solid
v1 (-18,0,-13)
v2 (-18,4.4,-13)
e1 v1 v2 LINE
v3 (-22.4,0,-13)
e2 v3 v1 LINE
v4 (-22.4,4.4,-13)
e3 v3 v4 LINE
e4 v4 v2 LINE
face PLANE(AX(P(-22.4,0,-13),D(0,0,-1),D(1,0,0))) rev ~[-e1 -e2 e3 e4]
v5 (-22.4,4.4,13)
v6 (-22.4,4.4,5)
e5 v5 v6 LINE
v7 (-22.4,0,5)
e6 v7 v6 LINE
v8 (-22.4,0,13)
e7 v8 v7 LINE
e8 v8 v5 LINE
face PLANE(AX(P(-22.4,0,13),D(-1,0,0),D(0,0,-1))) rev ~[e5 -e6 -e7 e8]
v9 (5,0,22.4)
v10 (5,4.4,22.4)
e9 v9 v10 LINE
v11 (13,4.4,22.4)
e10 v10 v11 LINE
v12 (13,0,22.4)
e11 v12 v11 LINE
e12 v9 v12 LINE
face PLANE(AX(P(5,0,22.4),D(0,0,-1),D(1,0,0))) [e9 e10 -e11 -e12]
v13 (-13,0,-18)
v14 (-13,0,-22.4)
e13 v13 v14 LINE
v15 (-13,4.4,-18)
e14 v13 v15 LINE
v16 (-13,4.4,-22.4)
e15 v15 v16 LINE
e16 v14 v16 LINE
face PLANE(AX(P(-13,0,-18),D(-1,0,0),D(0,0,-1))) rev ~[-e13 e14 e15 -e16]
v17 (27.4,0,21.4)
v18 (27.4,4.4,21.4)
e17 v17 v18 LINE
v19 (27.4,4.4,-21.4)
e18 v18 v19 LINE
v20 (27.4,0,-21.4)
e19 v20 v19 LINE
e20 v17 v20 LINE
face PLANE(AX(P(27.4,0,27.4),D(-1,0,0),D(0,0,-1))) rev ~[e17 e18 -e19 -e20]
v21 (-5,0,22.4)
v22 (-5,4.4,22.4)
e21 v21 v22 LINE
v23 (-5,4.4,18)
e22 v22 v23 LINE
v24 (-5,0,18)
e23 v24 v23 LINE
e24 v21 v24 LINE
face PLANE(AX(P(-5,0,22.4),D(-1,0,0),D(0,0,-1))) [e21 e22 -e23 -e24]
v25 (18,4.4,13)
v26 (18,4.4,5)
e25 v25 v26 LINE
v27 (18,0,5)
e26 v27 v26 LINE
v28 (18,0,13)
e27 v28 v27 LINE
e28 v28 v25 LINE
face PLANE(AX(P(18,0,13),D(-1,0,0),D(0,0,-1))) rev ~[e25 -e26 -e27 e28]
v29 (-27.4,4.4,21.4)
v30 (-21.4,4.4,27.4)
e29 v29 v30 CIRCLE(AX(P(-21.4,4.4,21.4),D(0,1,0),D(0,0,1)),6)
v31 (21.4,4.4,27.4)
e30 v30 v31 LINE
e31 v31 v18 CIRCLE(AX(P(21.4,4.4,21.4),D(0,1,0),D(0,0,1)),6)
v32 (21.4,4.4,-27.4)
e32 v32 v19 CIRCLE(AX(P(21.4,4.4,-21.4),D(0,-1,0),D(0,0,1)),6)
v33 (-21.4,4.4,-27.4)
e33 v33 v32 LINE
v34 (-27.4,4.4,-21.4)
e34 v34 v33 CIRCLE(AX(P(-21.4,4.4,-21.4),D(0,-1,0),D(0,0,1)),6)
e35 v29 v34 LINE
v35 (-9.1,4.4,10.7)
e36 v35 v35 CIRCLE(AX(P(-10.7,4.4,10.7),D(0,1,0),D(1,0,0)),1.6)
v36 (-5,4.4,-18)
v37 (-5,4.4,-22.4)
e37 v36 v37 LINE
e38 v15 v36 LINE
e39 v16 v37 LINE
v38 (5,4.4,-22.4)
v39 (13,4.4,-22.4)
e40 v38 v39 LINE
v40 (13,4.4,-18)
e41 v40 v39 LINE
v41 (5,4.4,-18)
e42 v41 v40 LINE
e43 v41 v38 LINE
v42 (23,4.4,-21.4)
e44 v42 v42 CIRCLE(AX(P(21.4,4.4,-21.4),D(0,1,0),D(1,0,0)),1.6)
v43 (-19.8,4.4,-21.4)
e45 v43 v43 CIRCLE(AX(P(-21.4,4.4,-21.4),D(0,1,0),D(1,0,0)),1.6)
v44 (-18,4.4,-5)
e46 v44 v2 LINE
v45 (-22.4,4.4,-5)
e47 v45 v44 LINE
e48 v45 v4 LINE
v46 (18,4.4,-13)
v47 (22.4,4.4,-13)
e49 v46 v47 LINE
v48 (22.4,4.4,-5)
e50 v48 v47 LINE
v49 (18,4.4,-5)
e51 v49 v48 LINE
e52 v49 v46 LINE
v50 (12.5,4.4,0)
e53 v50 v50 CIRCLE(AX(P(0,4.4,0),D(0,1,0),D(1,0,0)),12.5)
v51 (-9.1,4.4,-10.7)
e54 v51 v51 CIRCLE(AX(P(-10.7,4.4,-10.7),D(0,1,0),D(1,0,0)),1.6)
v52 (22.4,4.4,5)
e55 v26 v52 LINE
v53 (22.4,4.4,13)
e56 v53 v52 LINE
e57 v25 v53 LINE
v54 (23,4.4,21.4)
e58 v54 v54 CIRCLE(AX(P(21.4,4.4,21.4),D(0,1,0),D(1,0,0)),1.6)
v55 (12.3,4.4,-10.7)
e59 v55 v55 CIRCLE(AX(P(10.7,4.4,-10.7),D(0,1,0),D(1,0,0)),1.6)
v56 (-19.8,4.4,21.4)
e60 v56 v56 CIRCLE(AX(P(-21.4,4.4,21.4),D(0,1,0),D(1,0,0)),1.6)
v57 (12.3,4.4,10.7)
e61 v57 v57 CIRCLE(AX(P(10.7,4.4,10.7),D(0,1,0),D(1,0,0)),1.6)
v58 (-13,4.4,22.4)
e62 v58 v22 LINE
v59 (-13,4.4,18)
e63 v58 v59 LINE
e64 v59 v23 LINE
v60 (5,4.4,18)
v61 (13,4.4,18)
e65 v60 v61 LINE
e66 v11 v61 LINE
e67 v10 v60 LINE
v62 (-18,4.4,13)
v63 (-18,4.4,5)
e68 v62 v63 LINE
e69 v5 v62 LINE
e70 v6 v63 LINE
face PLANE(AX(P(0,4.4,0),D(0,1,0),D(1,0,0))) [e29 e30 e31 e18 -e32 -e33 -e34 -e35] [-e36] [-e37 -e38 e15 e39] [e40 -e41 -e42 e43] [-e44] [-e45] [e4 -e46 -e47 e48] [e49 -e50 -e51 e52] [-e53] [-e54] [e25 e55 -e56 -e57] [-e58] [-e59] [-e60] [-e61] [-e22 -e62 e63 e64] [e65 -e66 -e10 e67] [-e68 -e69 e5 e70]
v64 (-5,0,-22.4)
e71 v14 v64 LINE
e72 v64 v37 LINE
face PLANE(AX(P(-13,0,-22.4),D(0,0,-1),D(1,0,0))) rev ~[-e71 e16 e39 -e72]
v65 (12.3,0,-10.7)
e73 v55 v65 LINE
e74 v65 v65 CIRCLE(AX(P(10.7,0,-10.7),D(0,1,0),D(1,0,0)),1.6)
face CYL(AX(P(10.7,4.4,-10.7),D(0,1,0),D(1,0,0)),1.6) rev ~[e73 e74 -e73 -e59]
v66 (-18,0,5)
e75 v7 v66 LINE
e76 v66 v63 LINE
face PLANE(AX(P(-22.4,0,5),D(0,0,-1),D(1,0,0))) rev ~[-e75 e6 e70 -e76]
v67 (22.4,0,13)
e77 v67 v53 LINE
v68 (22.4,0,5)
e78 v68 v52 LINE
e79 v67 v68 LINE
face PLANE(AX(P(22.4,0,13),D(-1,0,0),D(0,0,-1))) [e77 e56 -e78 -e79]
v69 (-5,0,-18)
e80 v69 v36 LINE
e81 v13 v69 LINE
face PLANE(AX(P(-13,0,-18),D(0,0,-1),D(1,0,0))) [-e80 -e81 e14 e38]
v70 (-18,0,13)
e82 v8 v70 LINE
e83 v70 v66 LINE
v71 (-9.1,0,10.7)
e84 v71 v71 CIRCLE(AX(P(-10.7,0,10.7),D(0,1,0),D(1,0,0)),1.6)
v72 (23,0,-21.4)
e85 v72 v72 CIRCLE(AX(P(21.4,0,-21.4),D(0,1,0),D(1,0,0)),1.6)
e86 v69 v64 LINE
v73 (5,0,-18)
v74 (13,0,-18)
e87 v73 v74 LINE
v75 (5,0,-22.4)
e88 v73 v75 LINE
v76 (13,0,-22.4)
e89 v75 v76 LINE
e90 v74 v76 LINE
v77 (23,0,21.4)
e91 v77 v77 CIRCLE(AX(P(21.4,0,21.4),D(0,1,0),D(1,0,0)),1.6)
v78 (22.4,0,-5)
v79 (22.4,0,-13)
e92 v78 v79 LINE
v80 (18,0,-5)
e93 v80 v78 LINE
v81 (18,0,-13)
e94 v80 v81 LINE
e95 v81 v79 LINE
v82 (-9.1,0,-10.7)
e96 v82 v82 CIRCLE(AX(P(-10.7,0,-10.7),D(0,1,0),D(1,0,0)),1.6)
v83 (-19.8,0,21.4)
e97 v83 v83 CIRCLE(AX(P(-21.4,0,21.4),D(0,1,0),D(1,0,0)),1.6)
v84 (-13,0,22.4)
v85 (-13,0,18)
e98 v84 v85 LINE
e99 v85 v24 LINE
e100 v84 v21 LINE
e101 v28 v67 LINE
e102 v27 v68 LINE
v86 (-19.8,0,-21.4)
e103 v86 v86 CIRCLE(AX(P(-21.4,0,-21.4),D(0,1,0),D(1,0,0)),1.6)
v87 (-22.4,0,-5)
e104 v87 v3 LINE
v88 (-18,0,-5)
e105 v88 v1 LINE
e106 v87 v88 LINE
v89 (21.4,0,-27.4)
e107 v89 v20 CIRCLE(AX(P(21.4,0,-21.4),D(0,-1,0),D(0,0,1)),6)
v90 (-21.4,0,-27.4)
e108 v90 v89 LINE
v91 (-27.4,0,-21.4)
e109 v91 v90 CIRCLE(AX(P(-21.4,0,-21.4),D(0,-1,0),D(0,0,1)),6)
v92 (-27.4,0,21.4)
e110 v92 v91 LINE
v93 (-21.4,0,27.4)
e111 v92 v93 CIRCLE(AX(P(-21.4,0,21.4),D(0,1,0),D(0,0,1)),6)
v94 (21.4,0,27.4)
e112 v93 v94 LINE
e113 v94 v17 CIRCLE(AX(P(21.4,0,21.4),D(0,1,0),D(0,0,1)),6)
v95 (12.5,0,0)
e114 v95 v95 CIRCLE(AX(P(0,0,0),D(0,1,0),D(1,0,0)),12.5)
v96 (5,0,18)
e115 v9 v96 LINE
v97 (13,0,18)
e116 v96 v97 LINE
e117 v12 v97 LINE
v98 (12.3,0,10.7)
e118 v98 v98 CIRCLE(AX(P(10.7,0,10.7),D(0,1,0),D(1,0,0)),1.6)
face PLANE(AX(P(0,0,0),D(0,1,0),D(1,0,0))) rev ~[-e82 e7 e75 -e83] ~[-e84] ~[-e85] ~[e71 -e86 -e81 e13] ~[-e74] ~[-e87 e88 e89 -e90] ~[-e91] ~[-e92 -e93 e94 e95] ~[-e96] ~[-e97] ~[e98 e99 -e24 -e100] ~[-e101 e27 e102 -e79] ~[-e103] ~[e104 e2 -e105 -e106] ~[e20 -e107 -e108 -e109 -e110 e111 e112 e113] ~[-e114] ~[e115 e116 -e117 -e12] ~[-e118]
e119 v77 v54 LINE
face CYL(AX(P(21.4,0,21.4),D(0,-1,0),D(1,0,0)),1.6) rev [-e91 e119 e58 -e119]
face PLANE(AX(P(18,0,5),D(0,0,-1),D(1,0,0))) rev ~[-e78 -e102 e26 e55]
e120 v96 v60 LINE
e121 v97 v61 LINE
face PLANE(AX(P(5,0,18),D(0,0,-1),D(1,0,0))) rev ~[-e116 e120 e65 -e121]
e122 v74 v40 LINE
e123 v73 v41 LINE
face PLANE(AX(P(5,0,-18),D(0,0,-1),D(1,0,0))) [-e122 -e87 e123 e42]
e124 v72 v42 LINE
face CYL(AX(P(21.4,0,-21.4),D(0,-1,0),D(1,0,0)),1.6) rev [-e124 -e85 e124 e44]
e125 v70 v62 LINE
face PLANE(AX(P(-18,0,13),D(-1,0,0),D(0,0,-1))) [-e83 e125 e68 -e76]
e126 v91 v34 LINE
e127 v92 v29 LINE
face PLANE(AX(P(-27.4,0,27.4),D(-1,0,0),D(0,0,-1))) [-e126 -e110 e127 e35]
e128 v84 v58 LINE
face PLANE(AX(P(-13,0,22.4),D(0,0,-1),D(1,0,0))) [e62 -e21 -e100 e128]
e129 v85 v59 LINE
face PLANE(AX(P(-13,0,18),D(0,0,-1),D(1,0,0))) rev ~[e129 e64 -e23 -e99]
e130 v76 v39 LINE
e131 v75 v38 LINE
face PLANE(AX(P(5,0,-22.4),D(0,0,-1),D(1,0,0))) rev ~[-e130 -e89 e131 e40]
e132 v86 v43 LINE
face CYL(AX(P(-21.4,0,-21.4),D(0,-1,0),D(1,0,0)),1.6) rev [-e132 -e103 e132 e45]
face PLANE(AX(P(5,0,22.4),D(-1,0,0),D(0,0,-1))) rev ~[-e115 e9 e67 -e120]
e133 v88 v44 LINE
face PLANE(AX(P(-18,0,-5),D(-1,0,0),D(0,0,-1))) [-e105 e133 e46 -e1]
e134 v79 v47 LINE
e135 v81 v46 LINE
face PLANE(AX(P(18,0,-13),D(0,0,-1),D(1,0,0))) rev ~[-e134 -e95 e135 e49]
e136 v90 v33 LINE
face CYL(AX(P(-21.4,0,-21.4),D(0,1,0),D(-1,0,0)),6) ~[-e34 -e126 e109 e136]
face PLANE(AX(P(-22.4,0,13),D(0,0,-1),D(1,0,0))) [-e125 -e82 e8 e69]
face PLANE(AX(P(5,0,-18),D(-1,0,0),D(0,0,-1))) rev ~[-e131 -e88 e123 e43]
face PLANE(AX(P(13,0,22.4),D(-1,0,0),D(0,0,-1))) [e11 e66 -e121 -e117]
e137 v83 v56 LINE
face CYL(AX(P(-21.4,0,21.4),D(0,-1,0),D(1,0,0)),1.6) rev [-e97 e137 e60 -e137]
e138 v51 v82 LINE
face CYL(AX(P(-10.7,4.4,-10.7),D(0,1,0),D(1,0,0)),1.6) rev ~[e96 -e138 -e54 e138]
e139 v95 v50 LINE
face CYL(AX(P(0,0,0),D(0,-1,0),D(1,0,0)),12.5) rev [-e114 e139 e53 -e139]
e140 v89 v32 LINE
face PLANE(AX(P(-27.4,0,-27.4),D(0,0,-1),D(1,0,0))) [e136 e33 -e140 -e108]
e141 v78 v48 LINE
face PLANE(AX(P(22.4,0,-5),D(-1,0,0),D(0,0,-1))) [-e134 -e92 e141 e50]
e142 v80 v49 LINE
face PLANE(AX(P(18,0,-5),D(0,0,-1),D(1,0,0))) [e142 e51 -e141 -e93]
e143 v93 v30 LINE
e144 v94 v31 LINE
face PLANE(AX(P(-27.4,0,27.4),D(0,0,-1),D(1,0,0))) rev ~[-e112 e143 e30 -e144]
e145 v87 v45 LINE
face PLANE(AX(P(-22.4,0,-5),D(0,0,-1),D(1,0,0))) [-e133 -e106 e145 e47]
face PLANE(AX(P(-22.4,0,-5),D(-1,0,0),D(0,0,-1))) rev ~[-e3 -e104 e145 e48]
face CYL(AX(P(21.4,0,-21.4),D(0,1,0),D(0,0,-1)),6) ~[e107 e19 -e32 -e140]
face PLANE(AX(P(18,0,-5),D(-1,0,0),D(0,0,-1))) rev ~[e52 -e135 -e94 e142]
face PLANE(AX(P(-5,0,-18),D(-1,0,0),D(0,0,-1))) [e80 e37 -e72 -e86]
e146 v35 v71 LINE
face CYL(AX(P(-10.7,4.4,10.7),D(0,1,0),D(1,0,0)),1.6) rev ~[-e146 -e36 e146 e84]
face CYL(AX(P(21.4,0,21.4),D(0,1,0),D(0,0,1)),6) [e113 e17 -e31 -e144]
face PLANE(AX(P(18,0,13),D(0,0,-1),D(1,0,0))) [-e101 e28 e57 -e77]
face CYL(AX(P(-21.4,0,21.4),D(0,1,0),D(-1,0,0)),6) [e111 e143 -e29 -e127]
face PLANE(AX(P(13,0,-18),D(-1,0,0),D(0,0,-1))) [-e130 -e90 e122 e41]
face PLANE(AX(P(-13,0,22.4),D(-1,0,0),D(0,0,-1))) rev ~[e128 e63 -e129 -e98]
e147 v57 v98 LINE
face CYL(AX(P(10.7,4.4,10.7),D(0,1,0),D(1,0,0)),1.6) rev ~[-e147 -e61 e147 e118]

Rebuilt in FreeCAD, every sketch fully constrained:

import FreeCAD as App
import Part
import Sketcher

V = App.Vector
Q = App.Units.Quantity


def edges_at(feature, points):
    """Names of the edges that pass closest to the given points."""
    edges = feature.Shape.Edges
    near = lambda p: min(range(len(edges)), key=lambda i: edges[i].distToShape(Part.Vertex(*p))[0])
    return sorted({f"Edge{near(p) + 1}" for p in points})

doc = App.newDocument("Part")
body = doc.addObject("PartDesign::Body", "Body")

# Sketch on XZ plane
sketch1 = body.newObject("Sketcher::SketchObject", "Sketch")
sketch1.AttachmentSupport = (doc.getObject("XZ_Plane"), [""])
sketch1.MapMode = "FlatFace"
sketch1.addGeometry([
    Part.LineSegment(V(-27.4, -27.4, 0), V(-27.4, 27.4, 0)),  # 0
    Part.LineSegment(V(-27.4, 27.4, 0), V(27.4, 27.4, 0)),  # 1
    Part.LineSegment(V(27.4, 27.4, 0), V(27.4, -27.4, 0)),  # 2
    Part.LineSegment(V(27.4, -27.4, 0), V(-27.4, -27.4, 0)),  # 3
    Part.Circle(V(-21.4, 21.4, 0), V(0, 0, 1), 1.6),  # 4
    Part.LineSegment(V(-5, 22.4, 0), V(-13, 22.4, 0)),  # 5
    Part.LineSegment(V(-13, 22.4, 0), V(-13, 18, 0)),  # 6
    Part.LineSegment(V(-13, 18, 0), V(-5, 18, 0)),  # 7
    Part.LineSegment(V(-5, 18, 0), V(-5, 22.4, 0)),  # 8
    Part.LineSegment(V(-18, 13, 0), V(-22.4, 13, 0)),  # 9
    Part.LineSegment(V(-22.4, 13, 0), V(-22.4, 5, 0)),  # 10
    Part.LineSegment(V(-22.4, 5, 0), V(-18, 5, 0)),  # 11
    Part.LineSegment(V(-18, 5, 0), V(-18, 13, 0)),  # 12
    Part.LineSegment(V(13, 22.4, 0), V(5, 22.4, 0)),  # 13
    Part.LineSegment(V(5, 22.4, 0), V(5, 18, 0)),  # 14
    Part.LineSegment(V(5, 18, 0), V(13, 18, 0)),  # 15
    Part.LineSegment(V(13, 18, 0), V(13, 22.4, 0)),  # 16
    Part.Circle(V(21.4, 21.4, 0), V(0, 0, 1), 1.6),  # 17
    Part.LineSegment(V(22.4, 13, 0), V(18, 13, 0)),  # 18
    Part.LineSegment(V(18, 13, 0), V(18, 5, 0)),  # 19
    Part.LineSegment(V(18, 5, 0), V(22.4, 5, 0)),  # 20
    Part.LineSegment(V(22.4, 5, 0), V(22.4, 13, 0)),  # 21
    Part.LineSegment(V(-18, -5, 0), V(-22.4, -5, 0)),  # 22
    Part.LineSegment(V(-22.4, -5, 0), V(-22.4, -13, 0)),  # 23
    Part.LineSegment(V(-22.4, -13, 0), V(-18, -13, 0)),  # 24
    Part.LineSegment(V(-18, -13, 0), V(-18, -5, 0)),  # 25
    Part.Circle(V(-21.4, -21.4, 0), V(0, 0, 1), 1.6),  # 26
    Part.LineSegment(V(-5, -18, 0), V(-13, -18, 0)),  # 27
    Part.LineSegment(V(-13, -18, 0), V(-13, -22.4, 0)),  # 28
    Part.LineSegment(V(-13, -22.4, 0), V(-5, -22.4, 0)),  # 29
    Part.LineSegment(V(-5, -22.4, 0), V(-5, -18, 0)),  # 30
    Part.Circle(V(0, 0, 0), V(0, 0, 1), 12.5),  # 31
    Part.LineSegment(V(22.4, -5, 0), V(18, -5, 0)),  # 32
    Part.LineSegment(V(18, -5, 0), V(18, -13, 0)),  # 33
    Part.LineSegment(V(18, -13, 0), V(22.4, -13, 0)),  # 34
    Part.LineSegment(V(22.4, -13, 0), V(22.4, -5, 0)),  # 35
    Part.LineSegment(V(13, -18, 0), V(5, -18, 0)),  # 36
    Part.LineSegment(V(5, -18, 0), V(5, -22.4, 0)),  # 37
    Part.LineSegment(V(5, -22.4, 0), V(13, -22.4, 0)),  # 38
    Part.LineSegment(V(13, -22.4, 0), V(13, -18, 0)),  # 39
    Part.Circle(V(21.4, -21.4, 0), V(0, 0, 1), 1.6),  # 40
], False)
sketch1.addConstraint([
    Sketcher.Constraint("Coincident", 0, 2, 1, 1),
    Sketcher.Constraint("Coincident", 1, 2, 2, 1),
    Sketcher.Constraint("Coincident", 2, 2, 3, 1),
    Sketcher.Constraint("Coincident", 3, 2, 0, 1),
    Sketcher.Constraint("Coincident", 5, 2, 6, 1),
    Sketcher.Constraint("Coincident", 6, 2, 7, 1),
    Sketcher.Constraint("Coincident", 7, 2, 8, 1),
    Sketcher.Constraint("Coincident", 8, 2, 5, 1),
    Sketcher.Constraint("Coincident", 9, 2, 10, 1),
    Sketcher.Constraint("Coincident", 10, 2, 11, 1),
    Sketcher.Constraint("Coincident", 11, 2, 12, 1),
    Sketcher.Constraint("Coincident", 12, 2, 9, 1),
    Sketcher.Constraint("Coincident", 13, 2, 14, 1),
    Sketcher.Constraint("Coincident", 14, 2, 15, 1),
    Sketcher.Constraint("Coincident", 15, 2, 16, 1),
    Sketcher.Constraint("Coincident", 16, 2, 13, 1),
    Sketcher.Constraint("Coincident", 18, 2, 19, 1),
    Sketcher.Constraint("Coincident", 19, 2, 20, 1),
    Sketcher.Constraint("Coincident", 20, 2, 21, 1),
    Sketcher.Constraint("Coincident", 21, 2, 18, 1),
    Sketcher.Constraint("Coincident", 22, 2, 23, 1),
    Sketcher.Constraint("Coincident", 23, 2, 24, 1),
    Sketcher.Constraint("Coincident", 24, 2, 25, 1),
    Sketcher.Constraint("Coincident", 25, 2, 22, 1),
    Sketcher.Constraint("Coincident", 27, 2, 28, 1),
    Sketcher.Constraint("Coincident", 28, 2, 29, 1),
    Sketcher.Constraint("Coincident", 29, 2, 30, 1),
    Sketcher.Constraint("Coincident", 30, 2, 27, 1),
    Sketcher.Constraint("Coincident", 32, 2, 33, 1),
    Sketcher.Constraint("Coincident", 33, 2, 34, 1),
    Sketcher.Constraint("Coincident", 34, 2, 35, 1),
    Sketcher.Constraint("Coincident", 35, 2, 32, 1),
    Sketcher.Constraint("Coincident", 36, 2, 37, 1),
    Sketcher.Constraint("Coincident", 37, 2, 38, 1),
    Sketcher.Constraint("Coincident", 38, 2, 39, 1),
    Sketcher.Constraint("Coincident", 39, 2, 36, 1),
    Sketcher.Constraint("Vertical", 0),
    Sketcher.Constraint("Horizontal", 1),
    Sketcher.Constraint("Vertical", 2),
    Sketcher.Constraint("Horizontal", 3),
    Sketcher.Constraint("Horizontal", 5),
    Sketcher.Constraint("Vertical", 6),
    Sketcher.Constraint("Horizontal", 7),
    Sketcher.Constraint("Vertical", 8),
    Sketcher.Constraint("Horizontal", 9),
    Sketcher.Constraint("Vertical", 10),
    Sketcher.Constraint("Horizontal", 11),
    Sketcher.Constraint("Vertical", 12),
    Sketcher.Constraint("Horizontal", 13),
    Sketcher.Constraint("Vertical", 14),
    Sketcher.Constraint("Horizontal", 15),
    Sketcher.Constraint("Vertical", 16),
    Sketcher.Constraint("Horizontal", 18),
    Sketcher.Constraint("Vertical", 19),
    Sketcher.Constraint("Horizontal", 20),
    Sketcher.Constraint("Vertical", 21),
    Sketcher.Constraint("Horizontal", 22),
    Sketcher.Constraint("Vertical", 23),
    Sketcher.Constraint("Horizontal", 24),
    Sketcher.Constraint("Vertical", 25),
    Sketcher.Constraint("Horizontal", 27),
    Sketcher.Constraint("Vertical", 28),
    Sketcher.Constraint("Horizontal", 29),
    Sketcher.Constraint("Vertical", 30),
    Sketcher.Constraint("Horizontal", 32),
    Sketcher.Constraint("Vertical", 33),
    Sketcher.Constraint("Horizontal", 34),
    Sketcher.Constraint("Vertical", 35),
    Sketcher.Constraint("Horizontal", 36),
    Sketcher.Constraint("Vertical", 37),
    Sketcher.Constraint("Horizontal", 38),
    Sketcher.Constraint("Vertical", 39),
    Sketcher.Constraint("Coincident", 31, 3, -1, 1),
    Sketcher.Constraint("Equal", 4, 17),
    Sketcher.Constraint("Equal", 17, 26),
    Sketcher.Constraint("Equal", 26, 40),
    Sketcher.Constraint("Symmetric", 17, 3, 26, 3, -1, 1),
    Sketcher.Constraint("Symmetric", 4, 3, 40, 3, -1, 1),
    Sketcher.Constraint("Symmetric", 0, 2, 2, 2, -1, 1),
    Sketcher.Constraint("Symmetric", 20, 2, 22, 2, -1, 1),
    Sketcher.Constraint("Symmetric", 18, 2, 24, 2, -1, 1),
    Sketcher.Constraint("Symmetric", 15, 2, 27, 2, -1, 1),
    Sketcher.Constraint("Symmetric", 13, 2, 29, 2, -1, 1),
    Sketcher.Constraint("Symmetric", 11, 2, 32, 2, -1, 1),
    Sketcher.Constraint("Symmetric", 9, 2, 34, 2, -1, 1),
    Sketcher.Constraint("Symmetric", 7, 2, 36, 2, -1, 1),
    Sketcher.Constraint("Symmetric", 5, 2, 38, 2, -1, 1),
    Sketcher.Constraint("Symmetric", 4, 3, 17, 3, -2),
    Sketcher.Constraint("Symmetric", 8, 2, 13, 2, -2),
    Sketcher.Constraint("Symmetric", 6, 2, 15, 2, -2),
    Sketcher.Constraint("Symmetric", 12, 2, 18, 2, -2),
    Sketcher.Constraint("Symmetric", 10, 2, 20, 2, -2),
    Sketcher.Constraint("Equal", 3, 0),
    Sketcher.Constraint("Equal", 34, 6),
    Sketcher.Constraint("Equal", 38, 10),
    Sketcher.Constraint("Diameter", 31, Q("25 mm")),
    Sketcher.Constraint("Diameter", 4, Q("3.2 mm")),
    Sketcher.Constraint("DistanceX", 5, 2, 5, 1, Q("8 mm")),
    Sketcher.Constraint("DistanceX", 1, 1, 1, 2, Q("54.8 mm")),
    Sketcher.Constraint("DistanceX", 9, 2, 9, 1, Q("4.4 mm")),
    Sketcher.Constraint("DistanceX", 5, 2, -1, 1, Q("13 mm")),
    Sketcher.Constraint("DistanceY", -1, 1, 6, 2, Q("18 mm")),
    Sketcher.Constraint("DistanceY", -1, 1, 9, 2, Q("13 mm")),
    Sketcher.Constraint("DistanceX", 11, 2, -1, 1, Q("18 mm")),
    Sketcher.Constraint("DistanceX", 0, 2, 4, 3, Q("6 mm")),
    Sketcher.Constraint("DistanceY", 4, 3, 0, 2, Q("6 mm")),
])
pad1 = body.newObject("PartDesign::Pad", "Pad")
pad1.Profile = sketch1
pad1.Length = 4.4
pad1.Reversed = True
doc.recompute()

fillet = body.newObject("PartDesign::Fillet", "Fillet")
fillet.Base = (pad1, edges_at(pad1, [
    (27.4, 2.2, 27.4),
    (-27.4, 2.2, 27.4),
    (-27.4, 2.2, -27.4),
    (27.4, 2.2, -27.4),
]))
fillet.Radius = 6

# Sketch on XZ plane
sketch2 = body.newObject("Sketcher::SketchObject", "Sketch001")
sketch2.AttachmentSupport = (doc.getObject("XZ_Plane"), [""])
sketch2.MapMode = "FlatFace"
sketch2.AttachmentOffset = App.Placement(V(0, 0, -4.4), App.Rotation())
sketch2.addGeometry([
    Part.Circle(V(10.7, -10.7, 0), V(0, 0, 1), 1.6),
    Part.Circle(V(10.7, 10.7, 0), V(0, 0, 1), 1.6),
    Part.Circle(V(-10.7, 10.7, 0), V(0, 0, 1), 1.6),
    Part.Circle(V(-10.7, -10.7, 0), V(0, 0, 1), 1.6),
], False)
sketch2.addConstraint([
    Sketcher.Constraint("Equal", 0, 1),
    Sketcher.Constraint("Equal", 1, 2),
    Sketcher.Constraint("Equal", 2, 3),
    Sketcher.Constraint("Symmetric", 0, 3, 2, 3, -1, 1),
    Sketcher.Constraint("Symmetric", 1, 3, 3, 3, -1, 1),
    Sketcher.Constraint("Symmetric", 1, 3, 2, 3, -2),
    Sketcher.Constraint("Diameter", 0, Q("3.2 mm")),
    Sketcher.Constraint("DistanceX", -1, 1, 0, 3, Q("10.7 mm")),
    Sketcher.Constraint("DistanceY", 0, 3, -1, 1, Q("10.7 mm")),
])
pocket1 = body.newObject("PartDesign::Pocket", "Pocket")
pocket1.Profile = sketch2
pocket1.Length = 10
pocket1.Reversed = True

doc.recompute()
